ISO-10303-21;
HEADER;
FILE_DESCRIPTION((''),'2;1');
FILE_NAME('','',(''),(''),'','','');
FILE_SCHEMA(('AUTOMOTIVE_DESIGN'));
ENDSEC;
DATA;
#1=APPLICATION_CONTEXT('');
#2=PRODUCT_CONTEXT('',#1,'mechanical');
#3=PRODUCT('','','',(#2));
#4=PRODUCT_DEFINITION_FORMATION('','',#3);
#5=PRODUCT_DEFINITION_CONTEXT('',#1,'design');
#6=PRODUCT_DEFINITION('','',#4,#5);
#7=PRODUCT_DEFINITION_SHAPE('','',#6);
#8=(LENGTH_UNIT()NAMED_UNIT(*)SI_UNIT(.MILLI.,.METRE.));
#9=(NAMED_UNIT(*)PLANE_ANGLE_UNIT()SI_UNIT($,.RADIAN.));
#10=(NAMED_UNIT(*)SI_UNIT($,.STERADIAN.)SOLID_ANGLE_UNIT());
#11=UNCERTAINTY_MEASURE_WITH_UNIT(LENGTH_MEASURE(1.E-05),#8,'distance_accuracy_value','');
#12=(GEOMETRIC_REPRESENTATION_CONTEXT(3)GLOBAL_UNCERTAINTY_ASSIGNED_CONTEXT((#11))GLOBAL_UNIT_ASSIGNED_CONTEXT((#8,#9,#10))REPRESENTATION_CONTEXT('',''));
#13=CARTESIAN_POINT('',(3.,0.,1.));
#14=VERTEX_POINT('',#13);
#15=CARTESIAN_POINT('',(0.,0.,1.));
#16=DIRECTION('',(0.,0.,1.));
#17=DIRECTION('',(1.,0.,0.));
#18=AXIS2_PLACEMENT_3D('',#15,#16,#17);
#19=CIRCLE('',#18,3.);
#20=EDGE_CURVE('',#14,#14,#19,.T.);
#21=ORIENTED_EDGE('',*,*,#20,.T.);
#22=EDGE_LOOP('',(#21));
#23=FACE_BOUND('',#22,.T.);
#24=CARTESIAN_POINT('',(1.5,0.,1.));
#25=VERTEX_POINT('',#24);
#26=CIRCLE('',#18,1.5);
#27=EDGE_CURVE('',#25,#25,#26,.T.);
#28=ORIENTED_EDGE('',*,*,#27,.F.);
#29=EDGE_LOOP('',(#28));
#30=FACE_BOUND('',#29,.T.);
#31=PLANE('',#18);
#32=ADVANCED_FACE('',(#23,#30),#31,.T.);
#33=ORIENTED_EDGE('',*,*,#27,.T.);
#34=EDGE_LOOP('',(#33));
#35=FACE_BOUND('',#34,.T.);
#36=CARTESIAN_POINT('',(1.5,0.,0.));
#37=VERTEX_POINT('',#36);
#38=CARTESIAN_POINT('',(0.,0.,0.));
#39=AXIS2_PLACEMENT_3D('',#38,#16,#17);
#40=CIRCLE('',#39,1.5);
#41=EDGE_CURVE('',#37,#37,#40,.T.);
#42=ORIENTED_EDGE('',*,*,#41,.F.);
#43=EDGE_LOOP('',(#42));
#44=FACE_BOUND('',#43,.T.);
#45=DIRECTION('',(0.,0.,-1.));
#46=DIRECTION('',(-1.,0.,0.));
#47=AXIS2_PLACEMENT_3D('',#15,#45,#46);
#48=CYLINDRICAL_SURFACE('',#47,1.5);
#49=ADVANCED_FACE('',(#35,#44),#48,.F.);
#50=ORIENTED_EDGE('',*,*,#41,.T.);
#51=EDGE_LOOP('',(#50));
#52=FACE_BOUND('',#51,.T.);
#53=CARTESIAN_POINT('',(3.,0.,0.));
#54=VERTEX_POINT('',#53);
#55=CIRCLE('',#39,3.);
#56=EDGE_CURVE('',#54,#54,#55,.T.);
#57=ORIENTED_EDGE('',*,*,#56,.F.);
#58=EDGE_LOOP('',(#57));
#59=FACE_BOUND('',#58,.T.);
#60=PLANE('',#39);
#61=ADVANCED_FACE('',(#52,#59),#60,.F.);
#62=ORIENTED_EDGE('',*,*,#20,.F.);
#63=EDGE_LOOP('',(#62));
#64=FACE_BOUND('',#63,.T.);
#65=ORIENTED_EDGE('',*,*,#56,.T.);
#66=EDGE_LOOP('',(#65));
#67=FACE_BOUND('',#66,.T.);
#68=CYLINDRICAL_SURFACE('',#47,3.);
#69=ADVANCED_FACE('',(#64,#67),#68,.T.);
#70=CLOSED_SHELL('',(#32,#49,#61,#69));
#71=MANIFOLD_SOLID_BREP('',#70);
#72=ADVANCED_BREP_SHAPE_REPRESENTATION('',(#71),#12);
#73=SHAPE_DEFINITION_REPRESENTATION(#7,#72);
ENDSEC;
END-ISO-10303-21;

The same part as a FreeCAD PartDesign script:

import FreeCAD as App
import Part
import Sketcher

V = App.Vector

doc = App.newDocument("Part")
body = doc.addObject("PartDesign::Body", "Body")

# Sketch on XY plane
sketch1 = body.newObject("Sketcher::SketchObject", "Sketch")
sketch1.AttachmentSupport = (doc.getObject("XY_Plane"), [""])
sketch1.MapMode = "FlatFace"
sketch1.addGeometry([
    Part.Circle(V(0, 0, 0), V(0, 0, 1), 3),
    Part.Circle(V(0, 0, 0), V(0, 0, 1), 1.5),
], False)
sketch1.addConstraint([
    Sketcher.Constraint("Coincident", 0, 3, -1, 1),
    Sketcher.Constraint("Coincident", 1, 3, -1, 1),
    Sketcher.Constraint("Diameter", 0, 6.0),
    Sketcher.Constraint("Diameter", 1, 3.0),
])
pad1 = body.newObject("PartDesign::Pad", "Pad")
pad1.Profile = sketch1
pad1.Length = 1

doc.recompute()
